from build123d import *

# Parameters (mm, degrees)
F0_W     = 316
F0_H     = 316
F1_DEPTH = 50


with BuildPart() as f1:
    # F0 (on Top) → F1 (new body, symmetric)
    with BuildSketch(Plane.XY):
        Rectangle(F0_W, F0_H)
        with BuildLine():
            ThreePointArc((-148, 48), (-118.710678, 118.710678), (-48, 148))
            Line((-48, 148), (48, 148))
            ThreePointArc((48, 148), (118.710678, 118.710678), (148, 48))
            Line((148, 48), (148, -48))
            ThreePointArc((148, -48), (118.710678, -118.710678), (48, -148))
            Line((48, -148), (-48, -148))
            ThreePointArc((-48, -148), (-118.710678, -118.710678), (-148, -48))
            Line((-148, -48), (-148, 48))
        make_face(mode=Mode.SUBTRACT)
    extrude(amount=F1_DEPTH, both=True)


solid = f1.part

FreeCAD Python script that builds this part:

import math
import FreeCAD as App
import Part
import Sketcher

V = App.Vector
Q = App.Units.Quantity

doc = App.newDocument("Part")
body = doc.addObject("PartDesign::Body", "Body")

sketch1 = body.newObject("Sketcher::SketchObject", "Sketch")
sketch1.AttachmentSupport = (doc.getObject("XY_Plane"), [""])
sketch1.MapMode = "FlatFace"
sketch1.addGeometry(Part.LineSegment(V(-158, 158, 0), V(-158, -158, 0)), False)
sketch1.addGeometry(Part.LineSegment(V(-158, -158, 0), V(158, -158, 0)), False)
sketch1.addGeometry(Part.LineSegment(V(158, -158, 0), V(158, 158, 0)), False)
sketch1.addGeometry(Part.LineSegment(V(158, 158, 0), V(-158, 158, 0)), False)
sketch1.addGeometry(Part.LineSegment(V(-148, -48, 0), V(-148, 48, 0)), False)
sketch1.addGeometry(Part.ArcOfCircle(Part.Circle(V(-48, 48, 0), V(0, 0, 1), 100), math.radians(90), math.radians(180)), False)
sketch1.addGeometry(Part.LineSegment(V(-48, 148, 0), V(48, 148, 0)), False)
sketch1.addGeometry(Part.ArcOfCircle(Part.Circle(V(48, 48, 0), V(0, 0, 1), 100), math.radians(0), math.radians(90)), False)
sketch1.addGeometry(Part.LineSegment(V(148, 48, 0), V(148, -48, 0)), False)
sketch1.addGeometry(Part.ArcOfCircle(Part.Circle(V(48, -48, 0), V(0, 0, 1), 100), math.radians(-90), math.radians(0)), False)
sketch1.addGeometry(Part.LineSegment(V(48, -148, 0), V(-48, -148, 0)), False)
sketch1.addGeometry(Part.ArcOfCircle(Part.Circle(V(-48, -48, 0), V(0, 0, 1), 100), math.radians(-180), math.radians(-90)), False)
sketch1.addConstraint(Sketcher.Constraint("Coincident", 0, 2, 1, 1))
sketch1.addConstraint(Sketcher.Constraint("Coincident", 1, 2, 2, 1))
sketch1.addConstraint(Sketcher.Constraint("Coincident", 2, 2, 3, 1))
sketch1.addConstraint(Sketcher.Constraint("Coincident", 3, 2, 0, 1))
sketch1.addConstraint(Sketcher.Constraint("Tangent", 4, 2, 5, 2))
sketch1.addConstraint(Sketcher.Constraint("Tangent", 5, 1, 6, 1))
sketch1.addConstraint(Sketcher.Constraint("Tangent", 6, 2, 7, 2))
sketch1.addConstraint(Sketcher.Constraint("Tangent", 7, 1, 8, 1))
sketch1.addConstraint(Sketcher.Constraint("Tangent", 8, 2, 9, 2))
sketch1.addConstraint(Sketcher.Constraint("Tangent", 9, 1, 10, 1))
sketch1.addConstraint(Sketcher.Constraint("Tangent", 10, 2, 11, 2))
sketch1.addConstraint(Sketcher.Constraint("Tangent", 11, 1, 4, 1))
sketch1.addConstraint(Sketcher.Constraint("Vertical", 0))
sketch1.addConstraint(Sketcher.Constraint("Horizontal", 1))
sketch1.addConstraint(Sketcher.Constraint("Vertical", 2))
sketch1.addConstraint(Sketcher.Constraint("Horizontal", 3))
sketch1.addConstraint(Sketcher.Constraint("Vertical", 4))
sketch1.addConstraint(Sketcher.Constraint("Horizontal", 6))
sketch1.addConstraint(Sketcher.Constraint("Vertical", 8))
sketch1.addConstraint(Sketcher.Constraint("Horizontal", 10))
sketch1.addConstraint(Sketcher.Constraint("Equal", 5, 7))
sketch1.addConstraint(Sketcher.Constraint("Equal", 7, 9))
sketch1.addConstraint(Sketcher.Constraint("Equal", 9, 11))
sketch1.addConstraint(Sketcher.Constraint("Symmetric", 5, 3, 9, 3, -1, 1))
sketch1.addConstraint(Sketcher.Constraint("Symmetric", 0, 2, 2, 2, -1, 1))
sketch1.addConstraint(Sketcher.Constraint("Equal", 3, 0))
sketch1.addConstraint(Sketcher.Constraint("Equal", 10, 4))
sketch1.addConstraint(Sketcher.Constraint("Radius", 5, Q("100 mm")))
sketch1.addConstraint(Sketcher.Constraint("DistanceX", 1, 1, 1, 2, Q("316 mm")))
sketch1.addConstraint(Sketcher.Constraint("DistanceX", 6, 1, 6, 2, Q("96 mm")))
pad1 = body.newObject("PartDesign::Pad", "Pad")
pad1.Profile = sketch1
pad1.Length = 100
pad1.Midplane = True

doc.recompute()
